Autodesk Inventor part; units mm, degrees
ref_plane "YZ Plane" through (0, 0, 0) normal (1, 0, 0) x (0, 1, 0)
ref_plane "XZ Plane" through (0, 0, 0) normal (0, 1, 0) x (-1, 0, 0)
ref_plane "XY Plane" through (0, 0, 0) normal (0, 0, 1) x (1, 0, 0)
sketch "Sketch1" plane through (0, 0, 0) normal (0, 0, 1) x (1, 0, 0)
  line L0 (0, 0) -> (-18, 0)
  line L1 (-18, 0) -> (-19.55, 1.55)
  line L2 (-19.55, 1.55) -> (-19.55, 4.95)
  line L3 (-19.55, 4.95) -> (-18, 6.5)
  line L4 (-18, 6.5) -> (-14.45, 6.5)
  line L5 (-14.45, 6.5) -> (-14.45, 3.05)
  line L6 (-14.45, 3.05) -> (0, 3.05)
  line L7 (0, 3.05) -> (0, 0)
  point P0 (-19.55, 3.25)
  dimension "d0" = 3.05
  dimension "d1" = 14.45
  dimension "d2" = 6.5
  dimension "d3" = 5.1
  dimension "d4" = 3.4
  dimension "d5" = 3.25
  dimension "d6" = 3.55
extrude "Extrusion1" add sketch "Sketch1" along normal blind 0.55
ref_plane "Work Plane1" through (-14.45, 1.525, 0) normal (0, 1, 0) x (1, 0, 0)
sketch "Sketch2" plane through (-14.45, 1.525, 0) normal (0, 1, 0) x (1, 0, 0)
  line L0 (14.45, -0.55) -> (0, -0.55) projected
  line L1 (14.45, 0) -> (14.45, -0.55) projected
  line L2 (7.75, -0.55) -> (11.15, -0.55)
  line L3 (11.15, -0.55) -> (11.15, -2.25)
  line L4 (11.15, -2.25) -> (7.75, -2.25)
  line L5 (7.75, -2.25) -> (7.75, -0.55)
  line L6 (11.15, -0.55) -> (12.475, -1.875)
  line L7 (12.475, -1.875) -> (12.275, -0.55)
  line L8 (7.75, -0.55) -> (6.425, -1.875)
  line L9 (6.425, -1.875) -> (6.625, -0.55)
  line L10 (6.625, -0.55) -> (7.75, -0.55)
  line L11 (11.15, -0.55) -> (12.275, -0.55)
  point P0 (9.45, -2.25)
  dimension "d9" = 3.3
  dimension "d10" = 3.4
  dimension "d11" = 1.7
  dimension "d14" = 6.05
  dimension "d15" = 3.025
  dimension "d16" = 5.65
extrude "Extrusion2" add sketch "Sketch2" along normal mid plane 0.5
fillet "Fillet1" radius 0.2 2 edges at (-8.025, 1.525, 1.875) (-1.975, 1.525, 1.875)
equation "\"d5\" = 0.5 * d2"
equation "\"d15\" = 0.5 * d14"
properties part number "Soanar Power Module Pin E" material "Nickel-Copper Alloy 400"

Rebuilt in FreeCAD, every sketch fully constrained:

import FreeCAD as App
import Part
import Sketcher

V = App.Vector
Q = App.Units.Quantity


def edges_at(feature, points):
    """Names of the edges that pass closest to the given points."""
    edges = feature.Shape.Edges
    near = lambda p: min(range(len(edges)), key=lambda i: edges[i].distToShape(Part.Vertex(*p))[0])
    return sorted({f"Edge{near(p) + 1}" for p in points})

doc = App.newDocument("Part")
body = doc.addObject("PartDesign::Body", "Body")

sketch1 = body.newObject("Sketcher::SketchObject", "Sketch")
sketch1.AttachmentSupport = (doc.getObject("XY_Plane"), [""])
sketch1.MapMode = "FlatFace"
sketch1.addGeometry([
    Part.LineSegment(V(-18, 0, 0), V(0, 0, 0)),
    Part.LineSegment(V(0, 0, 0), V(0, 3, 0)),
    Part.LineSegment(V(0, 3, 0), V(-14.4, 3, 0)),
    Part.LineSegment(V(-14.4, 3, 0), V(-14.4, 6.5, 0)),
    Part.LineSegment(V(-14.4, 6.5, 0), V(-18, 6.5, 0)),
    Part.LineSegment(V(-18, 6.5, 0), V(-19.6, 5, 0)),
    Part.LineSegment(V(-19.6, 5, 0), V(-19.6, 1.6, 0)),
    Part.LineSegment(V(-19.6, 1.6, 0), V(-18, 0, 0)),
], False)
sketch1.addConstraint([
    Sketcher.Constraint("Coincident", 0, 2, 1, 1),
    Sketcher.Constraint("Coincident", 1, 2, 2, 1),
    Sketcher.Constraint("Coincident", 2, 2, 3, 1),
    Sketcher.Constraint("Coincident", 3, 2, 4, 1),
    Sketcher.Constraint("Coincident", 4, 2, 5, 1),
    Sketcher.Constraint("Coincident", 5, 2, 6, 1),
    Sketcher.Constraint("Coincident", 6, 2, 7, 1),
    Sketcher.Constraint("Coincident", 7, 2, 0, 1),
    Sketcher.Constraint("Horizontal", 0),
    Sketcher.Constraint("Vertical", 1),
    Sketcher.Constraint("Horizontal", 2),
    Sketcher.Constraint("Vertical", 3),
    Sketcher.Constraint("Horizontal", 4),
    Sketcher.Constraint("Vertical", 6),
    Sketcher.Constraint("Coincident", 0, 2, -1, 1),
    Sketcher.Constraint("Perpendicular", 5, 7),
    Sketcher.Constraint("Vertical", 4, 2, 7, 2),
    Sketcher.Constraint("Equal", 5, 7),
    Sketcher.Constraint("DistanceY", 6, 2, 6, 1, Q("3.4 mm")),
    Sketcher.Constraint("DistanceX", 2, 2, 2, 1, Q("14.45 mm")),
    Sketcher.Constraint("DistanceX", 4, 2, 4, 1, Q("3.55 mm")),
    Sketcher.Constraint("DistanceY", 1, 1, 1, 2, Q("3.05 mm")),
    Sketcher.Constraint("DistanceY", -1, 1, 3, 2, Q("6.5 mm")),
])
pad1 = body.newObject("PartDesign::Pad", "Pad")
pad1.Profile = sketch1
pad1.Length = 0.55

sketch2 = body.newObject("Sketcher::SketchObject", "Sketch001")
sketch2.AttachmentSupport = (doc.getObject("XZ_Plane"), [""])
sketch2.MapMode = "FlatFace"
sketch2.AttachmentOffset = App.Placement(V(0, 0, -1.525), App.Rotation())
sketch2.addGeometry([
    Part.LineSegment(V(-2, 1.9, 0), V(-2.2, 0.6, 0)),
    Part.LineSegment(V(-2.2, 0.6, 0), V(-3.3, 0.6, 0)),
    Part.LineSegment(V(-3.3, 0.6, 0), V(-2, 1.9, 0)),
    Part.LineSegment(V(-8, 1.9, 0), V(-6.7, 0.6, 0)),
    Part.LineSegment(V(-6.7, 0.6, 0), V(-7.8, 0.6, 0)),
    Part.LineSegment(V(-7.8, 0.6, 0), V(-8, 1.9, 0)),
    Part.LineSegment(V(-3.3, 2.2, 0), V(-3.3, 0.6, 0)),
    Part.LineSegment(V(-3.3, 0.6, 0), V(-6.7, 0.6, 0)),
    Part.LineSegment(V(-6.7, 0.6, 0), V(-6.7, 2.2, 0)),
    Part.LineSegment(V(-6.7, 2.2, 0), V(-3.3, 2.2, 0)),
], False)
sketch2.addConstraint([
    Sketcher.Constraint("Coincident", 0, 2, 1, 1),
    Sketcher.Constraint("Coincident", 1, 2, 2, 1),
    Sketcher.Constraint("Coincident", 2, 2, 0, 1),
    Sketcher.Constraint("Coincident", 3, 2, 4, 1),
    Sketcher.Constraint("Coincident", 4, 2, 5, 1),
    Sketcher.Constraint("Coincident", 5, 2, 3, 1),
    Sketcher.Constraint("Coincident", 6, 2, 7, 1),
    Sketcher.Constraint("Coincident", 7, 2, 8, 1),
    Sketcher.Constraint("Coincident", 8, 2, 9, 1),
    Sketcher.Constraint("Coincident", 9, 2, 6, 1),
    Sketcher.Constraint("Horizontal", 1),
    Sketcher.Constraint("Horizontal", 4),
    Sketcher.Constraint("Vertical", 6),
    Sketcher.Constraint("Horizontal", 7),
    Sketcher.Constraint("Vertical", 8),
    Sketcher.Constraint("Horizontal", 9),
    Sketcher.Constraint("Coincident", 6, 2, 1, 2),
    Sketcher.Constraint("Coincident", 7, 2, 3, 2),
    Sketcher.Constraint("Perpendicular", 2, 3),
    Sketcher.Constraint("Horizontal", 2, 2, 5, 2),
    Sketcher.Constraint("Equal", 1, 4),
    Sketcher.Constraint("Equal", 2, 3),
    Sketcher.Constraint("DistanceX", 7, 2, 7, 1, Q("3.4 mm")),
    Sketcher.Constraint("DistanceY", 6, 2, 6, 1, Q("1.7 mm")),
    Sketcher.Constraint("DistanceX", 1, 2, -1, 1, Q("3.3 mm")),
    Sketcher.Constraint("DistanceX", 4, 2, 0, 2, Q("5.65 mm")),
    Sketcher.Constraint("DistanceX", 5, 2, 2, 2, Q("6.05 mm")),
    Sketcher.Constraint("DistanceY", -1, 1, 0, 2, Q("0.55 mm")),
])
pad2 = body.newObject("PartDesign::Pad", "Pad001")
pad2.Profile = sketch2
pad2.Length = 0.5
pad2.Midplane = True
doc.recompute()

fillet = body.newObject("PartDesign::Fillet", "Fillet")
fillet.Base = (pad2, edges_at(pad2, [(-8.025, 1.525, 1.875), (-1.975, 1.525, 1.875)]))
fillet.Radius = 0.2

doc.recompute()
